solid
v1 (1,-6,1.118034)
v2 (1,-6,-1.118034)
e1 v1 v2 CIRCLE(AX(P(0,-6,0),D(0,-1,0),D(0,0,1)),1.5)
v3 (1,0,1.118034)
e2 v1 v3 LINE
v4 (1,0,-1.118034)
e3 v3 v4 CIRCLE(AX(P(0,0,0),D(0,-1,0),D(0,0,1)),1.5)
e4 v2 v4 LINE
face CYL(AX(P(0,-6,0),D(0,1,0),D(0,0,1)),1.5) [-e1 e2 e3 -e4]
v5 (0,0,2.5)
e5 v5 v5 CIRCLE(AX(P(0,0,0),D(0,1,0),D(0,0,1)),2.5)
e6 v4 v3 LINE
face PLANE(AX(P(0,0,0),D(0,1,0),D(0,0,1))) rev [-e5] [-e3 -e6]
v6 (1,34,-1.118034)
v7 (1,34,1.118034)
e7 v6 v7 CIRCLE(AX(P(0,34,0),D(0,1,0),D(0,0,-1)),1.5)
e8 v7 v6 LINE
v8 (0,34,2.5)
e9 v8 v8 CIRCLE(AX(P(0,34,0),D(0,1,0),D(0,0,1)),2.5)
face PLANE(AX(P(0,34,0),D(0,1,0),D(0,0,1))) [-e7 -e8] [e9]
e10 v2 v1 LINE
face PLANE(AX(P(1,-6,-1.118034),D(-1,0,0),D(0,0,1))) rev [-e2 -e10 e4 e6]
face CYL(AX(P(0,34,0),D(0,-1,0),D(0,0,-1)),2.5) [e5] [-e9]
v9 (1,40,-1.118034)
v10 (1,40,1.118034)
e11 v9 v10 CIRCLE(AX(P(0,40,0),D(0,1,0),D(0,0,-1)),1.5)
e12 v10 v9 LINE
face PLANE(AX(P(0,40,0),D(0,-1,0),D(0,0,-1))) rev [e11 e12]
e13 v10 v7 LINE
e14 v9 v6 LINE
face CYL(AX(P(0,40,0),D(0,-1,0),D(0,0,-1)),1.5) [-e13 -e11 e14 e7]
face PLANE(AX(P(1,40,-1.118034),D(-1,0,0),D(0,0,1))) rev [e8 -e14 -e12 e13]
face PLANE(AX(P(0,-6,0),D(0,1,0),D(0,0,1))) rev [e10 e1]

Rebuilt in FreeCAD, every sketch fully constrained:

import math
import FreeCAD as App
import Part
import Sketcher
Q = App.Units.Quantity

doc = App.newDocument("Part")
body = doc.addObject("PartDesign::Body", "Body")

# Sketch on XZ plane
sketch1 = body.newObject("Sketcher::SketchObject", "Sketch")
sketch1.AttachmentSupport = (doc.getObject("XZ_Plane"), [""])
sketch1.MapMode = "FlatFace"
sketch1.addGeometry(Part.Circle(App.Vector(0, 0, 0), App.Vector(0, 0, 1), 2.5), False)
sketch1.addConstraint(Sketcher.Constraint("Coincident", 0, 3, -1, 1))
sketch1.addConstraint(Sketcher.Constraint("Diameter", 0, Q("5 mm")))
pad1 = body.newObject("PartDesign::Pad", "Pad")
pad1.Profile = sketch1
pad1.Length = 34
pad1.Reversed = True

# Sketch on XZ plane
sketch2 = body.newObject("Sketcher::SketchObject", "Sketch001")
sketch2.AttachmentSupport = (doc.getObject("XZ_Plane"), [""])
sketch2.MapMode = "FlatFace"
sketch2.AttachmentOffset = App.Placement(App.Vector(0, 0, -34), App.Rotation())
sketch2.addGeometry(Part.LineSegment(App.Vector(1, 1.1, 0), App.Vector(1, -1.1, 0)), False)
sketch2.addGeometry(Part.ArcOfCircle(Part.Circle(App.Vector(0, 0, 0), App.Vector(0, 0, 1), 1.5), math.radians(48), math.radians(312)), False)
sketch2.addConstraint(Sketcher.Constraint("Coincident", 0, 1, 1, 1))
sketch2.addConstraint(Sketcher.Constraint("Coincident", 1, 2, 0, 2))
sketch2.addConstraint(Sketcher.Constraint("Vertical", 0))
sketch2.addConstraint(Sketcher.Constraint("Coincident", 1, 3, -1, 1))
sketch2.addConstraint(Sketcher.Constraint("Radius", 1, Q("1.5 mm")))
sketch2.addConstraint(Sketcher.Constraint("DistanceX", -1, 1, 0, 1, Q("1 mm")))
pad2 = body.newObject("PartDesign::Pad", "Pad001")
pad2.Profile = sketch2
pad2.Length = 6
pad2.Reversed = True

# Sketch on XZ plane
sketch3 = body.newObject("Sketcher::SketchObject", "Sketch002")
sketch3.AttachmentSupport = (doc.getObject("XZ_Plane"), [""])
sketch3.MapMode = "FlatFace"
sketch3.AttachmentOffset = App.Placement(App.Vector(0, 0, 6), App.Rotation())
sketch3.addGeometry(Part.LineSegment(App.Vector(1, -1.1, 0), App.Vector(1, 1.1, 0)), False)
sketch3.addGeometry(Part.ArcOfCircle(Part.Circle(App.Vector(0, 0, 0), App.Vector(0, 0, 1), 1.5), math.radians(48), math.radians(312)), False)
sketch3.addConstraint(Sketcher.Constraint("Coincident", 0, 1, 1, 2))
sketch3.addConstraint(Sketcher.Constraint("Coincident", 1, 1, 0, 2))
sketch3.addConstraint(Sketcher.Constraint("Vertical", 0))
sketch3.addConstraint(Sketcher.Constraint("Coincident", 1, 3, -1, 1))
sketch3.addConstraint(Sketcher.Constraint("Radius", 1, Q("1.5 mm")))
sketch3.addConstraint(Sketcher.Constraint("DistanceX", -1, 1, 0, 1, Q("1 mm")))
pad3 = body.newObject("PartDesign::Pad", "Pad002")
pad3.Profile = sketch3
pad3.Length = 6
pad3.Reversed = True

doc.recompute()
